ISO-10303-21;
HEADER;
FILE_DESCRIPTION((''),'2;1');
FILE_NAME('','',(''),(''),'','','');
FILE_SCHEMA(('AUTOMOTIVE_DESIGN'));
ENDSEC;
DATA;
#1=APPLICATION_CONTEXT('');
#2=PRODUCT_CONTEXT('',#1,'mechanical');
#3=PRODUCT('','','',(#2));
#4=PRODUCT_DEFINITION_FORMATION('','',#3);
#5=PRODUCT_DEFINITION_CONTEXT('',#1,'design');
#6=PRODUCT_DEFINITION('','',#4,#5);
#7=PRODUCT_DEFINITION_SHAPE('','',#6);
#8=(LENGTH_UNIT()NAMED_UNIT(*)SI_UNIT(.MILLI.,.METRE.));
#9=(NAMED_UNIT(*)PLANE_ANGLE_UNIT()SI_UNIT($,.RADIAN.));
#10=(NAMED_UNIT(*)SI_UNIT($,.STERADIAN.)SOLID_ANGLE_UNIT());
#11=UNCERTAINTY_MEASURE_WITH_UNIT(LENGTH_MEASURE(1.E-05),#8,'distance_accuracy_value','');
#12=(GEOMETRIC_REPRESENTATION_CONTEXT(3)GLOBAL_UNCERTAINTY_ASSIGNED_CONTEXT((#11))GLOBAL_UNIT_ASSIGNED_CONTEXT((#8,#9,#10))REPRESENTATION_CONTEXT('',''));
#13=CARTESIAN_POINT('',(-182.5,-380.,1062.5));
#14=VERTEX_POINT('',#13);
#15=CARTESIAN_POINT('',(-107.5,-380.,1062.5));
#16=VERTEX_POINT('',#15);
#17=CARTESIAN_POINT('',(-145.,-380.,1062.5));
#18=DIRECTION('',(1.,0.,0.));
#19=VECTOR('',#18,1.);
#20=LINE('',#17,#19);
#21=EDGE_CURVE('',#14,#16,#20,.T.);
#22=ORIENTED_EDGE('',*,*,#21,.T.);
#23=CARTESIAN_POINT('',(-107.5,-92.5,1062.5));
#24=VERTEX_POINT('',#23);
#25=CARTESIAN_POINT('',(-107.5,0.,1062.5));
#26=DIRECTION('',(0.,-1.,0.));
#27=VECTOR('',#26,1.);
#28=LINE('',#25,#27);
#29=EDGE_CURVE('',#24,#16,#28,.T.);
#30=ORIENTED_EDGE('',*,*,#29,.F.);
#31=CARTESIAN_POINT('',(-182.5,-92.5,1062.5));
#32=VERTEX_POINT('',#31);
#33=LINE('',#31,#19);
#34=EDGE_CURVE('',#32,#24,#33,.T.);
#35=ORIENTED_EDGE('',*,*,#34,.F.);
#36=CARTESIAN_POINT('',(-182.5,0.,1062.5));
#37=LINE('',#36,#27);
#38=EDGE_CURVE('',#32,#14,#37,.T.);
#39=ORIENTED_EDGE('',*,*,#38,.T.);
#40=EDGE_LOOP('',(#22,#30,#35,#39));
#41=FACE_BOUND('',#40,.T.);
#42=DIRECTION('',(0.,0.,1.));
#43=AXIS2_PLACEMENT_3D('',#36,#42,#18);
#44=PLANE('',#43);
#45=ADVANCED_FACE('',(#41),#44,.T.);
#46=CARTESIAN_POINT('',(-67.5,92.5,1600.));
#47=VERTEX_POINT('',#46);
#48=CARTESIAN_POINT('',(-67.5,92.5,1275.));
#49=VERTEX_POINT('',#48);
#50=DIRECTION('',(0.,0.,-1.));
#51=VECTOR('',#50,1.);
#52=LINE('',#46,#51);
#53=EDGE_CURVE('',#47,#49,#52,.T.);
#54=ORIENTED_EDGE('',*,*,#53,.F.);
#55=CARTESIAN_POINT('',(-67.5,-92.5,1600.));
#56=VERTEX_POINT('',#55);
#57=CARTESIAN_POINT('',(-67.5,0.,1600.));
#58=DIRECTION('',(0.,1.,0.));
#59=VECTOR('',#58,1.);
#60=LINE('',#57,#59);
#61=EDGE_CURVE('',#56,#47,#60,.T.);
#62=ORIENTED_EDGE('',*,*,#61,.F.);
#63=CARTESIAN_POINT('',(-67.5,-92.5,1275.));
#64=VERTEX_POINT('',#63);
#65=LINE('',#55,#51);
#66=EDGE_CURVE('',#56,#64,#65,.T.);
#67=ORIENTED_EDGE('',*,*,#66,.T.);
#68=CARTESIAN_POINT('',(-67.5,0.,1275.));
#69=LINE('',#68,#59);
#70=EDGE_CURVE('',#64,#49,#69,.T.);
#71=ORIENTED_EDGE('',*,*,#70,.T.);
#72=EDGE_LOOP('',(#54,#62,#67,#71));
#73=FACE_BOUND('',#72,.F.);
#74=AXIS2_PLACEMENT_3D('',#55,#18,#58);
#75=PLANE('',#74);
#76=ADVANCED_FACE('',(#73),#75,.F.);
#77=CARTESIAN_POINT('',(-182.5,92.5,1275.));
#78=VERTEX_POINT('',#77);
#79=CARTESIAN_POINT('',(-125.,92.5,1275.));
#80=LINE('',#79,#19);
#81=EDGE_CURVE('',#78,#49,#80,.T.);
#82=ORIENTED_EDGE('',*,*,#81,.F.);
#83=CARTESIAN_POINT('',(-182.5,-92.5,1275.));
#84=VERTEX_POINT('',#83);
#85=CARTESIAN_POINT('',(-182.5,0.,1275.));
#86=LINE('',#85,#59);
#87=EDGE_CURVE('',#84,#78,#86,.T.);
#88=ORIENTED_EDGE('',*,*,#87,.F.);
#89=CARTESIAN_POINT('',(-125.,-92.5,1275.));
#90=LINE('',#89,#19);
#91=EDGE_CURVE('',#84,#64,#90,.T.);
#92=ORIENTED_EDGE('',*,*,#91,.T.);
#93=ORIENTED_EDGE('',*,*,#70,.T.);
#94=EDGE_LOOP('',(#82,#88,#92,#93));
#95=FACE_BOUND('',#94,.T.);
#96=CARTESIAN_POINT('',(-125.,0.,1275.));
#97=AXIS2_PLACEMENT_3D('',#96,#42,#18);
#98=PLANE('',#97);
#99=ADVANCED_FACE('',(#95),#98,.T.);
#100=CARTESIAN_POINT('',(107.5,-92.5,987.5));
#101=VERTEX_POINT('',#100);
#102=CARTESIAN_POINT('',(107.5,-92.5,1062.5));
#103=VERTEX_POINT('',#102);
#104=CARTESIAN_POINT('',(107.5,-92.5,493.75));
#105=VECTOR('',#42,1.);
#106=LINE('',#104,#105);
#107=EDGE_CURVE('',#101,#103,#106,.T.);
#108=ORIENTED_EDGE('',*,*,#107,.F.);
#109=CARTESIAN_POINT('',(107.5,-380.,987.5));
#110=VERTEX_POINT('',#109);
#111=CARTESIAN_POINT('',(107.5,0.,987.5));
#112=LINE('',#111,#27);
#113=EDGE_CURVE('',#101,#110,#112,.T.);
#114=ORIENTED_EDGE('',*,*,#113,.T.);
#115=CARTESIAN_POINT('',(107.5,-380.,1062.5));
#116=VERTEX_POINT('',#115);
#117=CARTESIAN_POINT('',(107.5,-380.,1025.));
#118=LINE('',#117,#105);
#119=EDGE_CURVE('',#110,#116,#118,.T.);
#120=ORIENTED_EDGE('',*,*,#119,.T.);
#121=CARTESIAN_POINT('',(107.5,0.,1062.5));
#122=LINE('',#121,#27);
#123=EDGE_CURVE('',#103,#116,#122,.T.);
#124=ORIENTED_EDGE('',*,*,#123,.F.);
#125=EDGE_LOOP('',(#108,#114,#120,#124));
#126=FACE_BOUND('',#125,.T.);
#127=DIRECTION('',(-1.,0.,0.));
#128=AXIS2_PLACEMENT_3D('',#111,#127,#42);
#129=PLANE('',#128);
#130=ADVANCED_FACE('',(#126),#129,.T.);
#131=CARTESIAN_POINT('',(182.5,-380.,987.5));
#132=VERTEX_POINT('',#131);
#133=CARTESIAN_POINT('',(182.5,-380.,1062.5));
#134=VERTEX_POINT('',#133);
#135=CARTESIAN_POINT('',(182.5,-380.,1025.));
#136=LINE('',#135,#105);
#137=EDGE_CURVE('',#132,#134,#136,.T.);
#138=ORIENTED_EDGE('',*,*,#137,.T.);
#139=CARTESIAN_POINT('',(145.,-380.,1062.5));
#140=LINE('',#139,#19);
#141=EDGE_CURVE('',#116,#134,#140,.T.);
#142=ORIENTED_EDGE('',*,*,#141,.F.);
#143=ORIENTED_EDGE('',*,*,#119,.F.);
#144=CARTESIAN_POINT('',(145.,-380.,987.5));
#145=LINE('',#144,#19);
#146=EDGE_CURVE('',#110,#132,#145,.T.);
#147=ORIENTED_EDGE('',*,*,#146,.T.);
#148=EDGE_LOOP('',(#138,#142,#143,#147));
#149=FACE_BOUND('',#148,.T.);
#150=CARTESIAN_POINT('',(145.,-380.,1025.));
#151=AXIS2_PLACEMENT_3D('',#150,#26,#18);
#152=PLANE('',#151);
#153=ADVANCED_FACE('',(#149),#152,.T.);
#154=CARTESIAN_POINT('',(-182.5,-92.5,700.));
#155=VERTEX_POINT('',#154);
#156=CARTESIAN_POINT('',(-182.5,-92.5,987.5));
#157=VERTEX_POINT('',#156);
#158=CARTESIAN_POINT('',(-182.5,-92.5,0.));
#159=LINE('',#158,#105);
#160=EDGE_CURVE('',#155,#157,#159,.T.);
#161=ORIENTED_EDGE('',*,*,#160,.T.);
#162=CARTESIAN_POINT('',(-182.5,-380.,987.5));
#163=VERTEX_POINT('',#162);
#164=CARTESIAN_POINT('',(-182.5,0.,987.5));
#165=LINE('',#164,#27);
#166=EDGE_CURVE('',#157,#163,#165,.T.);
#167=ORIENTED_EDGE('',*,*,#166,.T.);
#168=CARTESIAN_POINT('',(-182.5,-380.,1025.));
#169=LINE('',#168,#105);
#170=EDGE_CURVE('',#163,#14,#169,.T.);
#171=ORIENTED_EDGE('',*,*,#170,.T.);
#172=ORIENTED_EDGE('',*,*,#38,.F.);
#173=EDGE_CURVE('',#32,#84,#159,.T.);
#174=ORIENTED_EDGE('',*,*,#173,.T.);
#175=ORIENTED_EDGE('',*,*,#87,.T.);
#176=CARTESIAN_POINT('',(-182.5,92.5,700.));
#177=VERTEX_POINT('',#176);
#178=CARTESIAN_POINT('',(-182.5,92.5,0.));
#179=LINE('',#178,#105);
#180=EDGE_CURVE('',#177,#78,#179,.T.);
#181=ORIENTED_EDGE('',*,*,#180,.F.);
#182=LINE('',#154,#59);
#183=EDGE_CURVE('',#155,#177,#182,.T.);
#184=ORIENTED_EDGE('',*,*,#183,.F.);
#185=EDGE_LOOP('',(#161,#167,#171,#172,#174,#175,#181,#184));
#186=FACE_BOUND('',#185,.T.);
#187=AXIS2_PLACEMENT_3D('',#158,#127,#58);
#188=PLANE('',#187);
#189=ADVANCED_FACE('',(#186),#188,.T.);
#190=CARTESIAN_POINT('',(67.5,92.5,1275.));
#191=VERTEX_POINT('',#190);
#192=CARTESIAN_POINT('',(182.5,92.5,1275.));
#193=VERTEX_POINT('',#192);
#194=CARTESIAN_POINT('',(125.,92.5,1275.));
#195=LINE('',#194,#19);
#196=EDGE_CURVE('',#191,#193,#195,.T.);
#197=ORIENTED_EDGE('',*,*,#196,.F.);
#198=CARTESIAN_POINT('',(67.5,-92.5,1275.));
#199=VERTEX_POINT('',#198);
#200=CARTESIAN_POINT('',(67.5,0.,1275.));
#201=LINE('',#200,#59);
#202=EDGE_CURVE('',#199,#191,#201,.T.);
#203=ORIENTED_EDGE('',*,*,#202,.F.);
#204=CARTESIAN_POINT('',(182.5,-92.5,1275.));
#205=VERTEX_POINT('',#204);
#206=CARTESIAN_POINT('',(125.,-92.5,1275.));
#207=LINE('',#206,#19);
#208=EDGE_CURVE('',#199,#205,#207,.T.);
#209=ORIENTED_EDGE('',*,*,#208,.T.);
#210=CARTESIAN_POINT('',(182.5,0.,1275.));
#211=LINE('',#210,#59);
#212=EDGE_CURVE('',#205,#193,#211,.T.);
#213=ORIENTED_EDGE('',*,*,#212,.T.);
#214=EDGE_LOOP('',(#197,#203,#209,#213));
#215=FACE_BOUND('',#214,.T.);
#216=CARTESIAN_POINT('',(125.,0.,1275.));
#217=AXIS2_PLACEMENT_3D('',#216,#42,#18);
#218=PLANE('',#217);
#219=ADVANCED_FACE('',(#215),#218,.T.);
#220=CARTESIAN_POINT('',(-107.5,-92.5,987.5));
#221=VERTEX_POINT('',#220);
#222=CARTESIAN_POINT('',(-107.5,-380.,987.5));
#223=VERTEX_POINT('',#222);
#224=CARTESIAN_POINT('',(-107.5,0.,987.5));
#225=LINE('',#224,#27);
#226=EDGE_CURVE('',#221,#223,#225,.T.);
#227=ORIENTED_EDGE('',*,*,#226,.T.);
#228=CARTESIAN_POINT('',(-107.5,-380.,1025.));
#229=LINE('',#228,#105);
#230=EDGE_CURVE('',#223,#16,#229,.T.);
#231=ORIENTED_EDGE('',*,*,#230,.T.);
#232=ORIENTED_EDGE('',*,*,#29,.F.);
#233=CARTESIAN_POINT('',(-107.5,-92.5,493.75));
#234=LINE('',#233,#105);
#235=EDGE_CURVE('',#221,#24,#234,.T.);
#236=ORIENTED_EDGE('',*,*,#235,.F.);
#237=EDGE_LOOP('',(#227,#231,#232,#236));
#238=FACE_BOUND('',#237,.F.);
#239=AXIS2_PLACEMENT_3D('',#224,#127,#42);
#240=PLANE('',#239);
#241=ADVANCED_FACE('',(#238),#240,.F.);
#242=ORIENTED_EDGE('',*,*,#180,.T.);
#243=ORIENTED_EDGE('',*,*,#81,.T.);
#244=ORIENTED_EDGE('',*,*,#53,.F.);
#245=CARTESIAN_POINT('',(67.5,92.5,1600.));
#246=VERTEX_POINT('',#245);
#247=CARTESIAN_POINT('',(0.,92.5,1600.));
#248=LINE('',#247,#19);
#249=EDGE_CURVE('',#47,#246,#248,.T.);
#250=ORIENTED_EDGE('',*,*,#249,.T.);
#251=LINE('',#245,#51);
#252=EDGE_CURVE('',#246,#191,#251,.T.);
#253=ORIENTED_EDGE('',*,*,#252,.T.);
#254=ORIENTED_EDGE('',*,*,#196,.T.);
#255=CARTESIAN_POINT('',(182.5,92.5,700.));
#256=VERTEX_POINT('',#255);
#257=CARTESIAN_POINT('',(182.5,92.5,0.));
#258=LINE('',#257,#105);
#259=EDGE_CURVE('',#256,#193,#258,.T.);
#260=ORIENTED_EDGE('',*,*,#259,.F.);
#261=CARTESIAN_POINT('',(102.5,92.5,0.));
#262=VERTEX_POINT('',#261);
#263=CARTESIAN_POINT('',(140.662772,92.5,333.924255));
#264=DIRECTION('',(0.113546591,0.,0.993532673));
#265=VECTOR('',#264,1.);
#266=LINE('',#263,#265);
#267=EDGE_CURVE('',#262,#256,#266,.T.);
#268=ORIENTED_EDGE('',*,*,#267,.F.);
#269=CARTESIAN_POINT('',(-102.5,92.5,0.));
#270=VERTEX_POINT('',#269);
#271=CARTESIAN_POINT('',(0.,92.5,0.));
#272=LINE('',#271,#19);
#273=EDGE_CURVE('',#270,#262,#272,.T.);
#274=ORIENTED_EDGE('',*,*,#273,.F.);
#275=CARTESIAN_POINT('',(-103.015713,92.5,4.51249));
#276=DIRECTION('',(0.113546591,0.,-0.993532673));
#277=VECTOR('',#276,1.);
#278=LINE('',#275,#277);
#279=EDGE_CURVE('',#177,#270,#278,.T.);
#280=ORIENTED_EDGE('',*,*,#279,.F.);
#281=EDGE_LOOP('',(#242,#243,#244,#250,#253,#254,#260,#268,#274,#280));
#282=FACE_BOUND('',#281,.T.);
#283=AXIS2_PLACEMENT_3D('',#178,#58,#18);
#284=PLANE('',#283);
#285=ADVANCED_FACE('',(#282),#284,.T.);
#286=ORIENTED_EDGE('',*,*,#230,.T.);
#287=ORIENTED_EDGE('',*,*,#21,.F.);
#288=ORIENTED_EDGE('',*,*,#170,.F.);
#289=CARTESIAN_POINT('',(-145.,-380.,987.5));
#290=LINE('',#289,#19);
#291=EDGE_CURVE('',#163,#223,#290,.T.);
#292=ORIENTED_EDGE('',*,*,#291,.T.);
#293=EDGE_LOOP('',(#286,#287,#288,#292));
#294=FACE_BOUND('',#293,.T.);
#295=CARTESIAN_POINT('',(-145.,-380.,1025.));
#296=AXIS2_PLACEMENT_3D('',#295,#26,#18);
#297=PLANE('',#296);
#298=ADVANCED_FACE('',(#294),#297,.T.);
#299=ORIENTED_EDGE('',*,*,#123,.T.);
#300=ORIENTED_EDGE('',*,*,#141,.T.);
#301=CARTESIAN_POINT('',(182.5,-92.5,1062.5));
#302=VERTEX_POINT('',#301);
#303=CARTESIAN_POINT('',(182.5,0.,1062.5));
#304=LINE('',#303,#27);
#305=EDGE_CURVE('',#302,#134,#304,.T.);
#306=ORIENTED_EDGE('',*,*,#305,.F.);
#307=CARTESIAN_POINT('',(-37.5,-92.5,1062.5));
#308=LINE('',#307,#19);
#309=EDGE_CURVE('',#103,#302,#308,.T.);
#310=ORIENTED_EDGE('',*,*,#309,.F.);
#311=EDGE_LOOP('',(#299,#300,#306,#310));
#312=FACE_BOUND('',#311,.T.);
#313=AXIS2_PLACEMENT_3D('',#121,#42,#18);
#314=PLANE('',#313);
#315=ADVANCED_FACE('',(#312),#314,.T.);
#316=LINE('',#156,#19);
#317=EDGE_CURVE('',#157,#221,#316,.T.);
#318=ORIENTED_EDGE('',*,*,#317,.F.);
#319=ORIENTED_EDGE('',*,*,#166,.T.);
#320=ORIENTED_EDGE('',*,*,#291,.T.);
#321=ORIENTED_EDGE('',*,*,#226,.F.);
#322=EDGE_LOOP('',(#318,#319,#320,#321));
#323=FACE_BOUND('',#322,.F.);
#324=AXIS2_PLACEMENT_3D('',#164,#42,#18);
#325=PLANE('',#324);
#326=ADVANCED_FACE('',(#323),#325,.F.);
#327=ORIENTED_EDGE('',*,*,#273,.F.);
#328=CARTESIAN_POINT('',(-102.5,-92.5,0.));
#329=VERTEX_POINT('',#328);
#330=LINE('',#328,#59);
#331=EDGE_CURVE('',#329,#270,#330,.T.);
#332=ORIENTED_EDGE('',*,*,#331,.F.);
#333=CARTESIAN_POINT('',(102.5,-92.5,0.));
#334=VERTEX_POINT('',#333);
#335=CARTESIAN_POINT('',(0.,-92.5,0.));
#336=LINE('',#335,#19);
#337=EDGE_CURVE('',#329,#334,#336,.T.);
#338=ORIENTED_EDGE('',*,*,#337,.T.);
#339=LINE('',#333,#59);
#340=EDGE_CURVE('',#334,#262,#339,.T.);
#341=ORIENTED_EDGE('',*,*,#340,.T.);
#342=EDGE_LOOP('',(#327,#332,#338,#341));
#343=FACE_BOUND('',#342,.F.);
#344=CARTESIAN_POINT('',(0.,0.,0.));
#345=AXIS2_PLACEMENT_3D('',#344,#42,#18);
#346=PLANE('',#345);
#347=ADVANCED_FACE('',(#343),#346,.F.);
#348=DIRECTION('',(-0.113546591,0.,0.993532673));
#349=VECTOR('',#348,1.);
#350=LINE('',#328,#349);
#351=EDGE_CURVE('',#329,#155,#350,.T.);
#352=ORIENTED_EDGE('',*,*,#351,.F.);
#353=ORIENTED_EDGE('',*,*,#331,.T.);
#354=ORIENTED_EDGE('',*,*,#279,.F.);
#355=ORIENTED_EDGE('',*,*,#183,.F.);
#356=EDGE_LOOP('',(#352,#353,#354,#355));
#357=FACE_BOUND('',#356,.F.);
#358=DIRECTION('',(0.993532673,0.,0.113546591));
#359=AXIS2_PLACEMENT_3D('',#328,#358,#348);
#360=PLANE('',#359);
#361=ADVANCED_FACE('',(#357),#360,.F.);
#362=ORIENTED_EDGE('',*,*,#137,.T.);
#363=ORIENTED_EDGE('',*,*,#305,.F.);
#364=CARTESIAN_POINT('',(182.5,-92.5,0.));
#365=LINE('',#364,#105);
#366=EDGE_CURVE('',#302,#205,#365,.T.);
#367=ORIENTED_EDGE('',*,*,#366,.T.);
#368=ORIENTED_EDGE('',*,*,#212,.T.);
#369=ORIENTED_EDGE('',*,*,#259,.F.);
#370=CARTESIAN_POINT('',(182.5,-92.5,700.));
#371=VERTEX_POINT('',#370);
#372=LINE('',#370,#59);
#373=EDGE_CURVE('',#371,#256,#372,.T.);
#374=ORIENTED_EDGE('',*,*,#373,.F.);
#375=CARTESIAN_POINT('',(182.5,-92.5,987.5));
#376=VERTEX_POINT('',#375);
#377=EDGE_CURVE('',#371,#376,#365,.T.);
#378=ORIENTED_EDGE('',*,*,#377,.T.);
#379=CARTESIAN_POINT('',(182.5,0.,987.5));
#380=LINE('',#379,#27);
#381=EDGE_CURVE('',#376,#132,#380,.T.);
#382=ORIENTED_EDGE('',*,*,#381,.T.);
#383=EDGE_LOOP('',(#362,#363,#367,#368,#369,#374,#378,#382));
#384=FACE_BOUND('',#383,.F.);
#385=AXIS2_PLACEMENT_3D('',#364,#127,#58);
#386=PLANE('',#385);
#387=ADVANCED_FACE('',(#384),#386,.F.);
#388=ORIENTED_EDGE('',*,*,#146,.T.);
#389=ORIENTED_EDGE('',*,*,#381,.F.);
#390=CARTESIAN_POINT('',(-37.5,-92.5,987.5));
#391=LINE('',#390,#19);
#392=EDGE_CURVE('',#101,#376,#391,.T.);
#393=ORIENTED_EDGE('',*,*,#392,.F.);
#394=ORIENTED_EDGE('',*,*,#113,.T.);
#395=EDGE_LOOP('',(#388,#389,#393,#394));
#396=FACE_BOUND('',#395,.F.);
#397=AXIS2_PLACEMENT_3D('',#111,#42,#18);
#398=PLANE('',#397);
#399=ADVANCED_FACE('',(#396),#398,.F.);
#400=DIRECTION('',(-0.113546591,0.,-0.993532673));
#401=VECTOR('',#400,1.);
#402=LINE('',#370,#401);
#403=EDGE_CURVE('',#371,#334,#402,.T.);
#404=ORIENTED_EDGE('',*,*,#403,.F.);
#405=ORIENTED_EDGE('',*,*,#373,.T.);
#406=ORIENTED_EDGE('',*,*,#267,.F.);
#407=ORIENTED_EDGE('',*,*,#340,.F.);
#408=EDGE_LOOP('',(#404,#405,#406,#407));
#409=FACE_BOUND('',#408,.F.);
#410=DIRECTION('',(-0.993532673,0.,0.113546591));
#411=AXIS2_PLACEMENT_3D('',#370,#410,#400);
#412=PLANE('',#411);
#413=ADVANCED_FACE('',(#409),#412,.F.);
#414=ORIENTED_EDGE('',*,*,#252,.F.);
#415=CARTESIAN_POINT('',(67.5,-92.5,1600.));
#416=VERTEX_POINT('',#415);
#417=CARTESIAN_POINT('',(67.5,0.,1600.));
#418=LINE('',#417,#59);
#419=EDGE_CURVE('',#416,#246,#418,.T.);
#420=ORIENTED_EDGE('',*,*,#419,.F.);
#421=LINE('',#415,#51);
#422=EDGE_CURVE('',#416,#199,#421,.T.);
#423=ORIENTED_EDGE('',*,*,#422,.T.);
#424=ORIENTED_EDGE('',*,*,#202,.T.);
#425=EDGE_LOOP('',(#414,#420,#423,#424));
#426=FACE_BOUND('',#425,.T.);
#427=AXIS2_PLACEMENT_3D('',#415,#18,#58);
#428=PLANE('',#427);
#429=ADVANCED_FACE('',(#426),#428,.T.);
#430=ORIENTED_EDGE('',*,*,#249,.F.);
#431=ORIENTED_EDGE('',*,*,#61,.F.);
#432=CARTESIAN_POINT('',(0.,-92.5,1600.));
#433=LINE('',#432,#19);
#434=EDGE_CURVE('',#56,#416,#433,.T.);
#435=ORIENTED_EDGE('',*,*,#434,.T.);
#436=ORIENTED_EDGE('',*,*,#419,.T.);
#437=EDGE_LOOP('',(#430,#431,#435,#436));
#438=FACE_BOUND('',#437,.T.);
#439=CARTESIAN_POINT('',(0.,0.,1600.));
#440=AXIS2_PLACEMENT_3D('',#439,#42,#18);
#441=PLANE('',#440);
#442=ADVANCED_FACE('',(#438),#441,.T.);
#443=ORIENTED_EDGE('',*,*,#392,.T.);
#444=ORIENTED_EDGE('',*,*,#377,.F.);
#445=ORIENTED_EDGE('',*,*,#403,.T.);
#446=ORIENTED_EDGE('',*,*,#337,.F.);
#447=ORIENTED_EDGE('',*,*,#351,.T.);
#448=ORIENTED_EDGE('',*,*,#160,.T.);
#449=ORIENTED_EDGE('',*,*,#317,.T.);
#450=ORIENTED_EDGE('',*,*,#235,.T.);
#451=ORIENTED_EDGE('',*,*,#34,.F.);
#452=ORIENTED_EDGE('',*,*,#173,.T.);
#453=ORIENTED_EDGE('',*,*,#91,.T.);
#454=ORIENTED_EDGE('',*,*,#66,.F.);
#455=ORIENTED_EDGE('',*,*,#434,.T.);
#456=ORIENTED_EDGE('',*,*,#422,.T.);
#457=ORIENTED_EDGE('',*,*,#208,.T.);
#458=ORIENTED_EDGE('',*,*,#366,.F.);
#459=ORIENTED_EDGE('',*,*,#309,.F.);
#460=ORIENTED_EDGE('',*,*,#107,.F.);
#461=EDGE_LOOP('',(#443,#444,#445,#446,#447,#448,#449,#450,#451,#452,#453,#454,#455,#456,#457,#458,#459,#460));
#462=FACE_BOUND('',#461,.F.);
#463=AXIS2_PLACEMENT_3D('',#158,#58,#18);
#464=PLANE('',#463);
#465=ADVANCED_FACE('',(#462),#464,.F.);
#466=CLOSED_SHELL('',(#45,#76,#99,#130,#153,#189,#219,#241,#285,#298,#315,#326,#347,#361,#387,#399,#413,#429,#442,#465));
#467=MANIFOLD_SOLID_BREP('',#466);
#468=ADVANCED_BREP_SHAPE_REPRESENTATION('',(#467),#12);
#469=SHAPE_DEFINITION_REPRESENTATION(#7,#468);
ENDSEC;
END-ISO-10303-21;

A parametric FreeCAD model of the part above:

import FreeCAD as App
import Part
import Sketcher

V = App.Vector
Q = App.Units.Quantity


def add_polygon(sketch, points):
    """Adds a closed chain of lines whose ends are joined by coincident constraints."""
    first, n = sketch.GeometryCount, len(points)
    for a, b in zip(points, points[1:] + points[:1]):
        sketch.addGeometry(Part.LineSegment(App.Vector(*a, 0), App.Vector(*b, 0)), False)
    for i in range(n):
        sketch.addConstraint(Sketcher.Constraint("Coincident", first + i, 2, first + (i + 1) % n, 1))

doc = App.newDocument("Part")
body = doc.addObject("PartDesign::Body", "Body")

# Sketch on XY plane
sketch1 = body.newObject("Sketcher::SketchObject", "Sketch")
sketch1.AttachmentSupport = (doc.getObject("XY_Plane"), [""])
sketch1.MapMode = "FlatFace"
add_polygon(sketch1, [(-182.5, 92.5), (-182.5, -92.5), (182.5, -92.5), (182.5, 92.5)])  # lines 0-3
sketch1.addConstraint([
    Sketcher.Constraint("Vertical", 0),
    Sketcher.Constraint("Horizontal", 1),
    Sketcher.Constraint("Vertical", 2),
    Sketcher.Constraint("Horizontal", 3),
    Sketcher.Constraint("Symmetric", 0, 2, 2, 2, -1, 1),
    Sketcher.Constraint("DistanceX", 1, 1, 1, 2, Q("365 mm")),
    Sketcher.Constraint("DistanceY", 0, 2, 0, 1, Q("185 mm")),
])
pad1 = body.newObject("PartDesign::Pad", "Pad")
pad1.Profile = sketch1
pad1.Length = 1600

# Sketch on XZ plane
sketch2 = body.newObject("Sketcher::SketchObject", "Sketch001")
sketch2.AttachmentSupport = (doc.getObject("XZ_Plane"), [""])
sketch2.MapMode = "FlatFace"
add_polygon(sketch2, [(-182.5, 1062.5), (-182.5, 987.5), (-107.5, 987.5), (-107.5, 1062.5)])  # lines 0-3
add_polygon(sketch2, [(107.5, 1062.5), (107.5, 987.5), (182.5, 987.5), (182.5, 1062.5)])  # lines 4-7
sketch2.addConstraint([
    Sketcher.Constraint("Vertical", 0),
    Sketcher.Constraint("Horizontal", 1),
    Sketcher.Constraint("Vertical", 2),
    Sketcher.Constraint("Horizontal", 3),
    Sketcher.Constraint("Vertical", 4),
    Sketcher.Constraint("Horizontal", 5),
    Sketcher.Constraint("Vertical", 6),
    Sketcher.Constraint("Horizontal", 7),
    Sketcher.Constraint("Symmetric", 1, 2, 4, 2, -2),
    Sketcher.Constraint("Symmetric", 3, 2, 6, 2, -2),
    Sketcher.Constraint("Equal", 7, 0),
    Sketcher.Constraint("DistanceX", 1, 1, 1, 2, Q("75 mm")),
    Sketcher.Constraint("DistanceX", 1, 2, 4, 2, Q("215 mm")),
    Sketcher.Constraint("DistanceY", -1, 1, 0, 2, Q("987.5 mm")),
])
pad2 = body.newObject("PartDesign::Pad", "Pad001")
pad2.Profile = sketch2
pad2.Length = 380

# Sketch on XY plane
sketch3 = body.newObject("Sketcher::SketchObject", "Sketch002")
sketch3.AttachmentSupport = (doc.getObject("XY_Plane"), [""])
sketch3.MapMode = "FlatFace"
sketch3.AttachmentOffset = App.Placement(V(0, 0, 1600), App.Rotation())
add_polygon(sketch3, [(-182.5, 92.5), (-182.5, -92.5), (-67.5, -92.5), (-67.5, 92.5)])  # lines 0-3
add_polygon(sketch3, [(67.5, 92.5), (67.5, -92.5), (182.5, -92.5), (182.5, 92.5)])  # lines 4-7
sketch3.addConstraint([
    Sketcher.Constraint("Vertical", 0),
    Sketcher.Constraint("Horizontal", 1),
    Sketcher.Constraint("Vertical", 2),
    Sketcher.Constraint("Horizontal", 3),
    Sketcher.Constraint("Vertical", 4),
    Sketcher.Constraint("Horizontal", 5),
    Sketcher.Constraint("Vertical", 6),
    Sketcher.Constraint("Horizontal", 7),
    Sketcher.Constraint("Symmetric", 2, 2, 4, 2, -1, 1),
    Sketcher.Constraint("Symmetric", 0, 2, 6, 2, -1, 1),
    Sketcher.Constraint("Horizontal", 1, 2, 4, 2),
    Sketcher.Constraint("DistanceX", 1, 1, 1, 2, Q("115 mm")),
    Sketcher.Constraint("DistanceY", 0, 2, 0, 1, Q("185 mm")),
    Sketcher.Constraint("DistanceX", 1, 2, 4, 2, Q("135 mm")),
])
pocket1 = body.newObject("PartDesign::Pocket", "Pocket")
pocket1.Profile = sketch3
pocket1.Length = 325

# Sketch on XZ plane
sketch4 = body.newObject("Sketcher::SketchObject", "Sketch003")
sketch4.AttachmentSupport = (doc.getObject("XZ_Plane"), [""])
sketch4.MapMode = "FlatFace"
sketch4.AttachmentOffset = App.Placement(V(0, 0, 92.5), App.Rotation())
add_polygon(sketch4, [(-102.5, 0), (-182.5, 700), (-182.5, 0)])  # lines 0-2
add_polygon(sketch4, [(182.5, 0), (182.5, 700), (102.5, 0)])  # lines 3-5
sketch4.addConstraint([
    Sketcher.Constraint("Vertical", 1),
    Sketcher.Constraint("Horizontal", 2),
    Sketcher.Constraint("Vertical", 3),
    Sketcher.Constraint("Horizontal", 5),
    Sketcher.Constraint("Symmetric", 2, 2, 4, 2, -1, 1),
    Sketcher.Constraint("Symmetric", 0, 2, 3, 2, -2),
    Sketcher.Constraint("PointOnObject", 1, 2, -1),
    Sketcher.Constraint("DistanceX", 2, 1, 2, 2, Q("80 mm")),
    Sketcher.Constraint("DistanceY", 1, 2, 1, 1, Q("700 mm")),
    Sketcher.Constraint("DistanceX", 0, 2, 3, 2, Q("365 mm")),
])
pocket2 = body.newObject("PartDesign::Pocket", "Pocket001")
pocket2.Profile = sketch4
pocket2.Type = "ThroughAll"

doc.recompute()
